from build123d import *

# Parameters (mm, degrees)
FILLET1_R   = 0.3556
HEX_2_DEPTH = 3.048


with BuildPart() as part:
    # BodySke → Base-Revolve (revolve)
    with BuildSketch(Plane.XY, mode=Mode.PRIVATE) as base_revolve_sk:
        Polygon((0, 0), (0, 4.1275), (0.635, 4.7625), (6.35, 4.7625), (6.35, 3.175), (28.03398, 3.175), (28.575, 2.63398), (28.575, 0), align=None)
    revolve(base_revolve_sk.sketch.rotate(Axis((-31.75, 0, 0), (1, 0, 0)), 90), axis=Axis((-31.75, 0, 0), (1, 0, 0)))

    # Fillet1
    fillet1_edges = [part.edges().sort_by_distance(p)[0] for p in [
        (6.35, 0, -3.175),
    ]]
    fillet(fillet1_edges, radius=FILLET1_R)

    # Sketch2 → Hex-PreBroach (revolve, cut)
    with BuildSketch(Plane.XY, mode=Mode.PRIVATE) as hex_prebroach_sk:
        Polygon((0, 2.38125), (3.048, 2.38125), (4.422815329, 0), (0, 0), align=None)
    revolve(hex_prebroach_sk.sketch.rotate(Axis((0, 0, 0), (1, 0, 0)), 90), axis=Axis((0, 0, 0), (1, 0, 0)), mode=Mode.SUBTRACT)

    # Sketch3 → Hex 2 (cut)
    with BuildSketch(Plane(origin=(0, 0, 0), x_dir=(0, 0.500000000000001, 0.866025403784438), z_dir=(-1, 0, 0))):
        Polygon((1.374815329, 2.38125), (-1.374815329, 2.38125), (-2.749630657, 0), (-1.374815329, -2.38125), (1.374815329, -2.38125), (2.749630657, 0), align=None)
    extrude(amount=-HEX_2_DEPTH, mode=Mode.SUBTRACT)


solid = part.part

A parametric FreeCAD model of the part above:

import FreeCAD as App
import Part
import Sketcher

V = App.Vector
Q = App.Units.Quantity


def edges_at(feature, points):
    """Names of the edges that pass closest to the given points."""
    edges = feature.Shape.Edges
    near = lambda p: min(range(len(edges)), key=lambda i: edges[i].distToShape(Part.Vertex(*p))[0])
    return sorted({f"Edge{near(p) + 1}" for p in points})


def add_polygon(sketch, points):
    """Adds a closed chain of lines whose ends are joined by coincident constraints."""
    first, n = sketch.GeometryCount, len(points)
    for a, b in zip(points, points[1:] + points[:1]):
        sketch.addGeometry(Part.LineSegment(App.Vector(*a, 0), App.Vector(*b, 0)), False)
    for i in range(n):
        sketch.addConstraint(Sketcher.Constraint("Coincident", first + i, 2, first + (i + 1) % n, 1))

doc = App.newDocument("Part")
body = doc.addObject("PartDesign::Body", "Body")

sketch1 = doc.addObject("Sketcher::SketchObject", "Sketch")
body.addObject(sketch1)
sketch1.AttachmentSupport = (doc.XY_Plane, [""])
sketch1.MapMode = "FlatFace"
add_polygon(sketch1, [(0, 4.1), (0, 0), (28.6, 0), (28.6, 2.6), (28, 3.2), (6.3, 3.2), (6.3, 4.8), (0.6, 4.8)])
sketch1.addConstraint([
    Sketcher.Constraint("Vertical", 0),
    Sketcher.Constraint("Horizontal", 1),
    Sketcher.Constraint("Vertical", 2),
    Sketcher.Constraint("Horizontal", 4),
    Sketcher.Constraint("Vertical", 5),
    Sketcher.Constraint("Horizontal", 6),
    Sketcher.Constraint("Coincident", 0, 2, -1, 1),
    Sketcher.Constraint("Perpendicular", 3, 7),
    Sketcher.Constraint("Angle", 3, Q("135 deg")),
    Sketcher.Constraint("DistanceX", 6, 2, 2, 2, Q("1.1 in")),
    Sketcher.Constraint("DistanceX", 1, 1, 1, 2, Q("1.125 in")),
    Sketcher.Constraint("DistanceX", 6, 2, 6, 1, Q("0.225 in")),
    Sketcher.Constraint("DistanceY", 5, 1, 5, 2, Q("0.0625 in")),
    Sketcher.Constraint("DistanceX", 4, 2, 4, 1, Q("0.8537 in")),
    Sketcher.Constraint("DistanceY", 0, 2, 0, 1, Q("0.1625 in")),
])
revolution = doc.addObject("PartDesign::Revolution", "Revolution")
body.addObject(revolution)
revolution.Profile = sketch1
revolution.ReferenceAxis = (sketch1, ["H_Axis"])
revolution.Angle = 360
doc.recompute()

fillet = doc.addObject("PartDesign::Fillet", "Fillet")
body.addObject(fillet)
fillet.Base = (revolution, edges_at(revolution, [(6.35, 0, -3.175)]))
fillet.Radius = Q("0.014 in")

sketch2 = doc.addObject("Sketcher::SketchObject", "Sketch001")
body.addObject(sketch2)
sketch2.AttachmentSupport = (doc.XY_Plane, [""])
sketch2.MapMode = "FlatFace"
add_polygon(sketch2, [(3, 2.4), (0, 2.4), (0, 0), (4.4, 0)])
sketch2.addConstraint([
    Sketcher.Constraint("Horizontal", 0),
    Sketcher.Constraint("Vertical", 1),
    Sketcher.Constraint("Horizontal", 2),
    Sketcher.Constraint("Coincident", 1, 2, -1, 1),
    Sketcher.Constraint("Angle", 3, Q("120 deg")),
    Sketcher.Constraint("DistanceX", 0, 2, 0, 1, Q("0.12 in")),
    Sketcher.Constraint("DistanceY", 1, 2, 1, 1, Q("0.09375 in")),
])
groove = doc.addObject("PartDesign::Groove", "Groove")
body.addObject(groove)
groove.Profile = sketch2
groove.ReferenceAxis = (sketch2, ["H_Axis"])
groove.Angle = 360

sketch3 = doc.addObject("Sketcher::SketchObject", "Sketch002")
body.addObject(sketch3)
sketch3.AttachmentSupport = (doc.YZ_Plane, [""])
sketch3.MapMode = "FlatFace"
add_polygon(sketch3, [(2.7, 0), (1.4, -2.4), (-1.4, -2.4), (-2.7, 0), (-1.4, 2.4), (1.4, 2.4)])
sketch3.addConstraint([
    Sketcher.Constraint("Horizontal", 1),
    Sketcher.Constraint("Horizontal", 4),
    Sketcher.Constraint("Symmetric", 0, 2, 3, 2, -1, 1),
    Sketcher.Constraint("Symmetric", 2, 2, 5, 2, -1, 1),
    Sketcher.Constraint("PointOnObject", 2, 2, -1),
    Sketcher.Constraint("Parallel", 2, 5),
    Sketcher.Constraint("Vertical", 1, 2, 3, 2),
    Sketcher.Constraint("Angle", 0, Q("-120 deg")),
    Sketcher.Constraint("DistanceY", 0, 2, -1, 1, Q("0.09375 in")),
    Sketcher.Constraint("DistanceX", 1, 2, 1, 1, Q("2.749631 mm")),
])
pocket1 = doc.addObject("PartDesign::Pocket", "Pocket")
body.addObject(pocket1)
pocket1.Profile = sketch3
pocket1.Length = Q("0.12 in")
pocket1.Reversed = True

doc.recompute()
